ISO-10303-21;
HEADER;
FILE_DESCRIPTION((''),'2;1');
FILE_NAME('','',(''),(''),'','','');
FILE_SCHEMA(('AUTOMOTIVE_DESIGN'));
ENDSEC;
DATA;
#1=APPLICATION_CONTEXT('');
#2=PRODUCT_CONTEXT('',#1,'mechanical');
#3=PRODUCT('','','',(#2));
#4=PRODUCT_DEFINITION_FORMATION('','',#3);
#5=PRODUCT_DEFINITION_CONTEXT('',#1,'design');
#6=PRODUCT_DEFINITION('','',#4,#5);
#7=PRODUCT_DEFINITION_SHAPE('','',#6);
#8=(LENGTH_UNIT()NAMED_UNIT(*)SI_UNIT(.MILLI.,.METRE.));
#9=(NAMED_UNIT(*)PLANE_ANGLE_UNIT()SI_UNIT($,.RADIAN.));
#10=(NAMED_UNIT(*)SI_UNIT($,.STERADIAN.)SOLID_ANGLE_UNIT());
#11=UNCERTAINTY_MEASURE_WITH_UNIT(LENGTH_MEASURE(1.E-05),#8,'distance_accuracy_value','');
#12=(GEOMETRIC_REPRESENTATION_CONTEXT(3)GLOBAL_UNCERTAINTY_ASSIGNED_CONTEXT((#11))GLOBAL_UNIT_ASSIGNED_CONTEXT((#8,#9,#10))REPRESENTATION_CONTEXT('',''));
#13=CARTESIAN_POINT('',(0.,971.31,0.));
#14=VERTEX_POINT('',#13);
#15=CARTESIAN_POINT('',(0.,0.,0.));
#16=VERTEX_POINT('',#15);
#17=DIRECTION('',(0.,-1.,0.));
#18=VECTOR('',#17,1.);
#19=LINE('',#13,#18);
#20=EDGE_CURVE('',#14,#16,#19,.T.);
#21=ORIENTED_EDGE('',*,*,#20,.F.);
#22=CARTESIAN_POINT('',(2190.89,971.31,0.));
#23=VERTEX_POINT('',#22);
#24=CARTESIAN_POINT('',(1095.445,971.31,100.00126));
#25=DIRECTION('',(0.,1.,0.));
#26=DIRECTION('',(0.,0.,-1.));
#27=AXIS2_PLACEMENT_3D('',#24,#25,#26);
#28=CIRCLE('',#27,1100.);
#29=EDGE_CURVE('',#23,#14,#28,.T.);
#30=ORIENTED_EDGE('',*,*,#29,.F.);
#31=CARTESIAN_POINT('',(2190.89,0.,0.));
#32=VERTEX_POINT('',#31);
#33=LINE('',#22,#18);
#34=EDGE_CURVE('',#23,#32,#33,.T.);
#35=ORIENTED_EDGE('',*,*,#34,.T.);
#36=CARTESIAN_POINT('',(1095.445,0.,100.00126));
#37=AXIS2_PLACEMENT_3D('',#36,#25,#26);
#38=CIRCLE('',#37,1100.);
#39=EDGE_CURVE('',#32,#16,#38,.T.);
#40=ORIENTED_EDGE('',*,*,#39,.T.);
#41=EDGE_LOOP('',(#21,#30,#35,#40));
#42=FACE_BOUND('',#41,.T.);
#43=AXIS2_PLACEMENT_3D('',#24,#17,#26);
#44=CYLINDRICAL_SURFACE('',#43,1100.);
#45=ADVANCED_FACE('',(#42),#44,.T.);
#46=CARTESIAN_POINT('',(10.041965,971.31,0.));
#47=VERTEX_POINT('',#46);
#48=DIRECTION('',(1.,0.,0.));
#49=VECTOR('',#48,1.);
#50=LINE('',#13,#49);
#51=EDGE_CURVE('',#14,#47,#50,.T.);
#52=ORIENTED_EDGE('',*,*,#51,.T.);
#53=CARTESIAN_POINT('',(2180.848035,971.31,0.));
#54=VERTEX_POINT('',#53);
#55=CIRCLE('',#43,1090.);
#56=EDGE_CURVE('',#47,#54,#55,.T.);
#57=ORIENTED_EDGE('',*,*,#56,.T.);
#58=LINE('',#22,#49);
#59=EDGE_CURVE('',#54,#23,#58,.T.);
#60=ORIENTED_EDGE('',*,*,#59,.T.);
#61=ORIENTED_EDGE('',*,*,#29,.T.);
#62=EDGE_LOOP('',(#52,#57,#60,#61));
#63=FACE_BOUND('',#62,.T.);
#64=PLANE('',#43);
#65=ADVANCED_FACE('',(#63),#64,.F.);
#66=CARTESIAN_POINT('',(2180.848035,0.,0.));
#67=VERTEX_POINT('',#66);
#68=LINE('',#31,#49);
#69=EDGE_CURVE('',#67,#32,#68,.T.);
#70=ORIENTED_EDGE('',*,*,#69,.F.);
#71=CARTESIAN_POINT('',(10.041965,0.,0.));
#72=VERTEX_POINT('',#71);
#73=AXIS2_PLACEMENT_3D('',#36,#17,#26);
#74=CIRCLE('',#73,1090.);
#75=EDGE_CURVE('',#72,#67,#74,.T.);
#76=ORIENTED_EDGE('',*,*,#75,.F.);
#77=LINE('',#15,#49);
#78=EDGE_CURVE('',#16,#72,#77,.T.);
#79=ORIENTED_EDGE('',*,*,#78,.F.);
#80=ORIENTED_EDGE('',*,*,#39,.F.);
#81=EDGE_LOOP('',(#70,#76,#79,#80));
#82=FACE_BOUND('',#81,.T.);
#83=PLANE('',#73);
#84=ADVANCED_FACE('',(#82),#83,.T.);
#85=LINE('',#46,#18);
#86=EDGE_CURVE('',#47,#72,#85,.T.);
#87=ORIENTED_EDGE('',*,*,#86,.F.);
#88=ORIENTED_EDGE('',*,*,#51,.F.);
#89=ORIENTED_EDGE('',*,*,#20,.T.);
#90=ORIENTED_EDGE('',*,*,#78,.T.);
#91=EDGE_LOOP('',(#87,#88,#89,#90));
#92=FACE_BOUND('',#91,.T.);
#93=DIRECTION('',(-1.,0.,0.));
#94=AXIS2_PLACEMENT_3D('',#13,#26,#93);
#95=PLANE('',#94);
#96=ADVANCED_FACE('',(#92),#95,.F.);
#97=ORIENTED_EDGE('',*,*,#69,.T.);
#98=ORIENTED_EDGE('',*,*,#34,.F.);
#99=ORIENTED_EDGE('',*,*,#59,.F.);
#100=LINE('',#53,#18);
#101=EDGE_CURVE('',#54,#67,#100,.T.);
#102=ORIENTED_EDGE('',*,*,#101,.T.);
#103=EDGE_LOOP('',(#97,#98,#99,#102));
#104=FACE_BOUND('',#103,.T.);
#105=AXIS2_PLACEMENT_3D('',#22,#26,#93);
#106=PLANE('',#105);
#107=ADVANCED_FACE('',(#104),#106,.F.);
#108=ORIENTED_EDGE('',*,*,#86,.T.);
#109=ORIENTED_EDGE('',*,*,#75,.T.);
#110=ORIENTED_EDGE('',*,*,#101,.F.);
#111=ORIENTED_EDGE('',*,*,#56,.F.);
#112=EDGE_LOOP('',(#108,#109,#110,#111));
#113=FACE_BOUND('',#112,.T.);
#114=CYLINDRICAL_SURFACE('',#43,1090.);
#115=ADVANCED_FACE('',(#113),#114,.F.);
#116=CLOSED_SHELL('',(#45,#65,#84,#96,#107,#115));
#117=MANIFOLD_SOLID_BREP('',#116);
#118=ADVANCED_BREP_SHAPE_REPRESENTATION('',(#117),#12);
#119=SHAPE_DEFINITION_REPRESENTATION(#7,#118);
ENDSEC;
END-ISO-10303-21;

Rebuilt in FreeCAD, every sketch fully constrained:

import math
import FreeCAD as App
import Part
import Sketcher
from FreeCAD import Vector
Q = App.Units.Quantity

doc = App.newDocument("Part")
body = doc.addObject("PartDesign::Body", "Body")

# Sketch on XZ plane
sketch1 = body.newObject("Sketcher::SketchObject", "Sketch")
sketch1.AttachmentSupport = (doc.getObject("XZ_Plane"), [""])
sketch1.MapMode = "FlatFace"
sketch1.addGeometry([
    Part.LineSegment(Vector(0, 0, 0), Vector(10.041965, 0, 0)),
    Part.ArcOfCircle(Part.Circle(Vector(1095.445, 100.00126, 0), Vector(0, 0, 1), 1090), math.radians(-174.736038), math.radians(-5.263962)),
    Part.LineSegment(Vector(2180.848035, 0, 0), Vector(2190.89, 0, 0)),
    Part.ArcOfCircle(Part.Circle(Vector(1095.445, 100.00126, 0), Vector(0, 0, 1), 1100), math.radians(-174.784026), math.radians(-5.215974)),
], False)
sketch1.addConstraint([
    Sketcher.Constraint("Coincident", 0, 2, 1, 1),
    Sketcher.Constraint("Coincident", 1, 2, 2, 1),
    Sketcher.Constraint("Coincident", 2, 2, 3, 2),
    Sketcher.Constraint("Coincident", 3, 1, 0, 1),
    Sketcher.Constraint("Horizontal", 0),
    Sketcher.Constraint("Horizontal", 2),
    Sketcher.Constraint("Coincident", 3, 3, 1, 3),
    Sketcher.Constraint("PointOnObject", 0, 2, -1),
    Sketcher.Constraint("PointOnObject", 2, 2, -1),
    Sketcher.Constraint("Radius", 1, Q("1090 mm")),
    Sketcher.Constraint("Radius", 3, Q("1100 mm")),
    Sketcher.Constraint("DistanceX", -1, 1, 2, 2, Q("2190.89 mm")),
    Sketcher.Constraint("DistanceX", -1, 1, 1, 3, Q("1095.445 mm")),
])
pad1 = body.newObject("PartDesign::Pad", "Pad")
pad1.Profile = sketch1
pad1.Length = 971.31
pad1.Reversed = True

doc.recompute()
